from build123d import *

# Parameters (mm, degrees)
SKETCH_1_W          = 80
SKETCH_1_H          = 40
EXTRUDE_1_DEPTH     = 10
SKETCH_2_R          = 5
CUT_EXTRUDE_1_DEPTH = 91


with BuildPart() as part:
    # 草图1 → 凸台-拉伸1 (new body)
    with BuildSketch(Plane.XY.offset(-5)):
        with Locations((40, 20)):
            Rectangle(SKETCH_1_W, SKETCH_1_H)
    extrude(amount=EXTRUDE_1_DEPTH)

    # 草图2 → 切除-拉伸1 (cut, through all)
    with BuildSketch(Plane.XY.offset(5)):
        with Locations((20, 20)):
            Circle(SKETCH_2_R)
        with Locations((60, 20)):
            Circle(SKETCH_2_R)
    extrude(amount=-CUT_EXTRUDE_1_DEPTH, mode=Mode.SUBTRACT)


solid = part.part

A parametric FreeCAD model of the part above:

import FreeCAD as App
import Part
import Sketcher

V = App.Vector
Q = App.Units.Quantity


def add_polygon(sketch, points):
    """Adds a closed chain of lines whose ends are joined by coincident constraints."""
    first, n = sketch.GeometryCount, len(points)
    for a, b in zip(points, points[1:] + points[:1]):
        sketch.addGeometry(Part.LineSegment(App.Vector(*a, 0), App.Vector(*b, 0)), False)
    for i in range(n):
        sketch.addConstraint(Sketcher.Constraint("Coincident", first + i, 2, first + (i + 1) % n, 1))

doc = App.newDocument("Part")
body = doc.addObject("PartDesign::Body", "Body")

# Sketch on XY plane
sketch1 = doc.addObject("Sketcher::SketchObject", "Sketch")
body.addObject(sketch1)
sketch1.AttachmentSupport = (doc.XY_Plane, [""])
sketch1.MapMode = "FlatFace"
sketch1.AttachmentOffset = App.Placement(V(0, 0, -5), App.Rotation())
add_polygon(sketch1, [(0, 40), (0, 0), (80, 0), (80, 40)])  # lines 0-3
sketch1.addConstraint(Sketcher.Constraint("Vertical", 0))
sketch1.addConstraint(Sketcher.Constraint("Horizontal", 1))
sketch1.addConstraint(Sketcher.Constraint("Vertical", 2))
sketch1.addConstraint(Sketcher.Constraint("Horizontal", 3))
sketch1.addConstraint(Sketcher.Constraint("Coincident", 0, 2, -1, 1))
sketch1.addConstraint(Sketcher.Constraint("DistanceX", 1, 1, 1, 2, Q("80 mm")))
sketch1.addConstraint(Sketcher.Constraint("DistanceY", 0, 2, 0, 1, Q("40 mm")))
pad1 = doc.addObject("PartDesign::Pad", "Pad")
body.addObject(pad1)
pad1.Profile = sketch1
pad1.Length = 10

# Sketch on XY plane
sketch2 = doc.addObject("Sketcher::SketchObject", "Sketch001")
body.addObject(sketch2)
sketch2.AttachmentSupport = (doc.XY_Plane, [""])
sketch2.MapMode = "FlatFace"
sketch2.AttachmentOffset = App.Placement(V(0, 0, 5), App.Rotation())
sketch2.addGeometry(Part.Circle(V(20, 20, 0), V(0, 0, 1), 5), False)
sketch2.addGeometry(Part.Circle(V(60, 20, 0), V(0, 0, 1), 5), False)
sketch2.addConstraint(Sketcher.Constraint("Equal", 0, 1))
sketch2.addConstraint(Sketcher.Constraint("Horizontal", 0, 3, 1, 3))
sketch2.addConstraint(Sketcher.Constraint("Diameter", 0, Q("10 mm")))
sketch2.addConstraint(Sketcher.Constraint("DistanceX", -1, 1, 0, 3, Q("20 mm")))
sketch2.addConstraint(Sketcher.Constraint("DistanceY", -1, 1, 0, 3, Q("20 mm")))
sketch2.addConstraint(Sketcher.Constraint("DistanceX", -1, 1, 1, 3, Q("60 mm")))
pocket1 = doc.addObject("PartDesign::Pocket", "Pocket")
body.addObject(pocket1)
pocket1.Profile = sketch2
pocket1.Type = "ThroughAll"

doc.recompute()
